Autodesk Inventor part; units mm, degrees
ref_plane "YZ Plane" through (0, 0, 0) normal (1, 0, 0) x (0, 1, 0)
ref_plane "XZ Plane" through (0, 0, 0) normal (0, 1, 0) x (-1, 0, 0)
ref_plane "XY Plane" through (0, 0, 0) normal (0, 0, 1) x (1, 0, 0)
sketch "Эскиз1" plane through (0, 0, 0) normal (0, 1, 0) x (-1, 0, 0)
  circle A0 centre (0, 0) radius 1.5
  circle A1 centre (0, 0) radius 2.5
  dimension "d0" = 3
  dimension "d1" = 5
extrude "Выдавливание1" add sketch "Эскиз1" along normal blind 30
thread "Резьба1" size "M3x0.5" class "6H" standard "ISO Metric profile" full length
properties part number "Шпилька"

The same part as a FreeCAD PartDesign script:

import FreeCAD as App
import Part
import Sketcher

V = App.Vector

doc = App.newDocument("Part")
body = doc.addObject("PartDesign::Body", "Body")

# Sketch on XZ plane
sketch1 = doc.addObject("Sketcher::SketchObject", "Sketch")
body.addObject(sketch1)
sketch1.AttachmentSupport = (doc.XZ_Plane, [""])
sketch1.MapMode = "FlatFace"
sketch1.addGeometry([
    Part.Circle(V(0, 0, 0), V(0, 0, 1), 2.5),
    Part.Circle(V(0, 0, 0), V(0, 0, 1), 1.5),
], False)
sketch1.addConstraint([
    Sketcher.Constraint("Coincident", 0, 3, -1, 1),
    Sketcher.Constraint("Coincident", 1, 3, -1, 1),
    Sketcher.Constraint("Diameter", 0, 5.0),
    Sketcher.Constraint("Diameter", 1, 3.0),
])
pad1 = doc.addObject("PartDesign::Pad", "Pad")
body.addObject(pad1)
pad1.Profile = sketch1
pad1.Length = 30
pad1.Reversed = True

doc.recompute()
